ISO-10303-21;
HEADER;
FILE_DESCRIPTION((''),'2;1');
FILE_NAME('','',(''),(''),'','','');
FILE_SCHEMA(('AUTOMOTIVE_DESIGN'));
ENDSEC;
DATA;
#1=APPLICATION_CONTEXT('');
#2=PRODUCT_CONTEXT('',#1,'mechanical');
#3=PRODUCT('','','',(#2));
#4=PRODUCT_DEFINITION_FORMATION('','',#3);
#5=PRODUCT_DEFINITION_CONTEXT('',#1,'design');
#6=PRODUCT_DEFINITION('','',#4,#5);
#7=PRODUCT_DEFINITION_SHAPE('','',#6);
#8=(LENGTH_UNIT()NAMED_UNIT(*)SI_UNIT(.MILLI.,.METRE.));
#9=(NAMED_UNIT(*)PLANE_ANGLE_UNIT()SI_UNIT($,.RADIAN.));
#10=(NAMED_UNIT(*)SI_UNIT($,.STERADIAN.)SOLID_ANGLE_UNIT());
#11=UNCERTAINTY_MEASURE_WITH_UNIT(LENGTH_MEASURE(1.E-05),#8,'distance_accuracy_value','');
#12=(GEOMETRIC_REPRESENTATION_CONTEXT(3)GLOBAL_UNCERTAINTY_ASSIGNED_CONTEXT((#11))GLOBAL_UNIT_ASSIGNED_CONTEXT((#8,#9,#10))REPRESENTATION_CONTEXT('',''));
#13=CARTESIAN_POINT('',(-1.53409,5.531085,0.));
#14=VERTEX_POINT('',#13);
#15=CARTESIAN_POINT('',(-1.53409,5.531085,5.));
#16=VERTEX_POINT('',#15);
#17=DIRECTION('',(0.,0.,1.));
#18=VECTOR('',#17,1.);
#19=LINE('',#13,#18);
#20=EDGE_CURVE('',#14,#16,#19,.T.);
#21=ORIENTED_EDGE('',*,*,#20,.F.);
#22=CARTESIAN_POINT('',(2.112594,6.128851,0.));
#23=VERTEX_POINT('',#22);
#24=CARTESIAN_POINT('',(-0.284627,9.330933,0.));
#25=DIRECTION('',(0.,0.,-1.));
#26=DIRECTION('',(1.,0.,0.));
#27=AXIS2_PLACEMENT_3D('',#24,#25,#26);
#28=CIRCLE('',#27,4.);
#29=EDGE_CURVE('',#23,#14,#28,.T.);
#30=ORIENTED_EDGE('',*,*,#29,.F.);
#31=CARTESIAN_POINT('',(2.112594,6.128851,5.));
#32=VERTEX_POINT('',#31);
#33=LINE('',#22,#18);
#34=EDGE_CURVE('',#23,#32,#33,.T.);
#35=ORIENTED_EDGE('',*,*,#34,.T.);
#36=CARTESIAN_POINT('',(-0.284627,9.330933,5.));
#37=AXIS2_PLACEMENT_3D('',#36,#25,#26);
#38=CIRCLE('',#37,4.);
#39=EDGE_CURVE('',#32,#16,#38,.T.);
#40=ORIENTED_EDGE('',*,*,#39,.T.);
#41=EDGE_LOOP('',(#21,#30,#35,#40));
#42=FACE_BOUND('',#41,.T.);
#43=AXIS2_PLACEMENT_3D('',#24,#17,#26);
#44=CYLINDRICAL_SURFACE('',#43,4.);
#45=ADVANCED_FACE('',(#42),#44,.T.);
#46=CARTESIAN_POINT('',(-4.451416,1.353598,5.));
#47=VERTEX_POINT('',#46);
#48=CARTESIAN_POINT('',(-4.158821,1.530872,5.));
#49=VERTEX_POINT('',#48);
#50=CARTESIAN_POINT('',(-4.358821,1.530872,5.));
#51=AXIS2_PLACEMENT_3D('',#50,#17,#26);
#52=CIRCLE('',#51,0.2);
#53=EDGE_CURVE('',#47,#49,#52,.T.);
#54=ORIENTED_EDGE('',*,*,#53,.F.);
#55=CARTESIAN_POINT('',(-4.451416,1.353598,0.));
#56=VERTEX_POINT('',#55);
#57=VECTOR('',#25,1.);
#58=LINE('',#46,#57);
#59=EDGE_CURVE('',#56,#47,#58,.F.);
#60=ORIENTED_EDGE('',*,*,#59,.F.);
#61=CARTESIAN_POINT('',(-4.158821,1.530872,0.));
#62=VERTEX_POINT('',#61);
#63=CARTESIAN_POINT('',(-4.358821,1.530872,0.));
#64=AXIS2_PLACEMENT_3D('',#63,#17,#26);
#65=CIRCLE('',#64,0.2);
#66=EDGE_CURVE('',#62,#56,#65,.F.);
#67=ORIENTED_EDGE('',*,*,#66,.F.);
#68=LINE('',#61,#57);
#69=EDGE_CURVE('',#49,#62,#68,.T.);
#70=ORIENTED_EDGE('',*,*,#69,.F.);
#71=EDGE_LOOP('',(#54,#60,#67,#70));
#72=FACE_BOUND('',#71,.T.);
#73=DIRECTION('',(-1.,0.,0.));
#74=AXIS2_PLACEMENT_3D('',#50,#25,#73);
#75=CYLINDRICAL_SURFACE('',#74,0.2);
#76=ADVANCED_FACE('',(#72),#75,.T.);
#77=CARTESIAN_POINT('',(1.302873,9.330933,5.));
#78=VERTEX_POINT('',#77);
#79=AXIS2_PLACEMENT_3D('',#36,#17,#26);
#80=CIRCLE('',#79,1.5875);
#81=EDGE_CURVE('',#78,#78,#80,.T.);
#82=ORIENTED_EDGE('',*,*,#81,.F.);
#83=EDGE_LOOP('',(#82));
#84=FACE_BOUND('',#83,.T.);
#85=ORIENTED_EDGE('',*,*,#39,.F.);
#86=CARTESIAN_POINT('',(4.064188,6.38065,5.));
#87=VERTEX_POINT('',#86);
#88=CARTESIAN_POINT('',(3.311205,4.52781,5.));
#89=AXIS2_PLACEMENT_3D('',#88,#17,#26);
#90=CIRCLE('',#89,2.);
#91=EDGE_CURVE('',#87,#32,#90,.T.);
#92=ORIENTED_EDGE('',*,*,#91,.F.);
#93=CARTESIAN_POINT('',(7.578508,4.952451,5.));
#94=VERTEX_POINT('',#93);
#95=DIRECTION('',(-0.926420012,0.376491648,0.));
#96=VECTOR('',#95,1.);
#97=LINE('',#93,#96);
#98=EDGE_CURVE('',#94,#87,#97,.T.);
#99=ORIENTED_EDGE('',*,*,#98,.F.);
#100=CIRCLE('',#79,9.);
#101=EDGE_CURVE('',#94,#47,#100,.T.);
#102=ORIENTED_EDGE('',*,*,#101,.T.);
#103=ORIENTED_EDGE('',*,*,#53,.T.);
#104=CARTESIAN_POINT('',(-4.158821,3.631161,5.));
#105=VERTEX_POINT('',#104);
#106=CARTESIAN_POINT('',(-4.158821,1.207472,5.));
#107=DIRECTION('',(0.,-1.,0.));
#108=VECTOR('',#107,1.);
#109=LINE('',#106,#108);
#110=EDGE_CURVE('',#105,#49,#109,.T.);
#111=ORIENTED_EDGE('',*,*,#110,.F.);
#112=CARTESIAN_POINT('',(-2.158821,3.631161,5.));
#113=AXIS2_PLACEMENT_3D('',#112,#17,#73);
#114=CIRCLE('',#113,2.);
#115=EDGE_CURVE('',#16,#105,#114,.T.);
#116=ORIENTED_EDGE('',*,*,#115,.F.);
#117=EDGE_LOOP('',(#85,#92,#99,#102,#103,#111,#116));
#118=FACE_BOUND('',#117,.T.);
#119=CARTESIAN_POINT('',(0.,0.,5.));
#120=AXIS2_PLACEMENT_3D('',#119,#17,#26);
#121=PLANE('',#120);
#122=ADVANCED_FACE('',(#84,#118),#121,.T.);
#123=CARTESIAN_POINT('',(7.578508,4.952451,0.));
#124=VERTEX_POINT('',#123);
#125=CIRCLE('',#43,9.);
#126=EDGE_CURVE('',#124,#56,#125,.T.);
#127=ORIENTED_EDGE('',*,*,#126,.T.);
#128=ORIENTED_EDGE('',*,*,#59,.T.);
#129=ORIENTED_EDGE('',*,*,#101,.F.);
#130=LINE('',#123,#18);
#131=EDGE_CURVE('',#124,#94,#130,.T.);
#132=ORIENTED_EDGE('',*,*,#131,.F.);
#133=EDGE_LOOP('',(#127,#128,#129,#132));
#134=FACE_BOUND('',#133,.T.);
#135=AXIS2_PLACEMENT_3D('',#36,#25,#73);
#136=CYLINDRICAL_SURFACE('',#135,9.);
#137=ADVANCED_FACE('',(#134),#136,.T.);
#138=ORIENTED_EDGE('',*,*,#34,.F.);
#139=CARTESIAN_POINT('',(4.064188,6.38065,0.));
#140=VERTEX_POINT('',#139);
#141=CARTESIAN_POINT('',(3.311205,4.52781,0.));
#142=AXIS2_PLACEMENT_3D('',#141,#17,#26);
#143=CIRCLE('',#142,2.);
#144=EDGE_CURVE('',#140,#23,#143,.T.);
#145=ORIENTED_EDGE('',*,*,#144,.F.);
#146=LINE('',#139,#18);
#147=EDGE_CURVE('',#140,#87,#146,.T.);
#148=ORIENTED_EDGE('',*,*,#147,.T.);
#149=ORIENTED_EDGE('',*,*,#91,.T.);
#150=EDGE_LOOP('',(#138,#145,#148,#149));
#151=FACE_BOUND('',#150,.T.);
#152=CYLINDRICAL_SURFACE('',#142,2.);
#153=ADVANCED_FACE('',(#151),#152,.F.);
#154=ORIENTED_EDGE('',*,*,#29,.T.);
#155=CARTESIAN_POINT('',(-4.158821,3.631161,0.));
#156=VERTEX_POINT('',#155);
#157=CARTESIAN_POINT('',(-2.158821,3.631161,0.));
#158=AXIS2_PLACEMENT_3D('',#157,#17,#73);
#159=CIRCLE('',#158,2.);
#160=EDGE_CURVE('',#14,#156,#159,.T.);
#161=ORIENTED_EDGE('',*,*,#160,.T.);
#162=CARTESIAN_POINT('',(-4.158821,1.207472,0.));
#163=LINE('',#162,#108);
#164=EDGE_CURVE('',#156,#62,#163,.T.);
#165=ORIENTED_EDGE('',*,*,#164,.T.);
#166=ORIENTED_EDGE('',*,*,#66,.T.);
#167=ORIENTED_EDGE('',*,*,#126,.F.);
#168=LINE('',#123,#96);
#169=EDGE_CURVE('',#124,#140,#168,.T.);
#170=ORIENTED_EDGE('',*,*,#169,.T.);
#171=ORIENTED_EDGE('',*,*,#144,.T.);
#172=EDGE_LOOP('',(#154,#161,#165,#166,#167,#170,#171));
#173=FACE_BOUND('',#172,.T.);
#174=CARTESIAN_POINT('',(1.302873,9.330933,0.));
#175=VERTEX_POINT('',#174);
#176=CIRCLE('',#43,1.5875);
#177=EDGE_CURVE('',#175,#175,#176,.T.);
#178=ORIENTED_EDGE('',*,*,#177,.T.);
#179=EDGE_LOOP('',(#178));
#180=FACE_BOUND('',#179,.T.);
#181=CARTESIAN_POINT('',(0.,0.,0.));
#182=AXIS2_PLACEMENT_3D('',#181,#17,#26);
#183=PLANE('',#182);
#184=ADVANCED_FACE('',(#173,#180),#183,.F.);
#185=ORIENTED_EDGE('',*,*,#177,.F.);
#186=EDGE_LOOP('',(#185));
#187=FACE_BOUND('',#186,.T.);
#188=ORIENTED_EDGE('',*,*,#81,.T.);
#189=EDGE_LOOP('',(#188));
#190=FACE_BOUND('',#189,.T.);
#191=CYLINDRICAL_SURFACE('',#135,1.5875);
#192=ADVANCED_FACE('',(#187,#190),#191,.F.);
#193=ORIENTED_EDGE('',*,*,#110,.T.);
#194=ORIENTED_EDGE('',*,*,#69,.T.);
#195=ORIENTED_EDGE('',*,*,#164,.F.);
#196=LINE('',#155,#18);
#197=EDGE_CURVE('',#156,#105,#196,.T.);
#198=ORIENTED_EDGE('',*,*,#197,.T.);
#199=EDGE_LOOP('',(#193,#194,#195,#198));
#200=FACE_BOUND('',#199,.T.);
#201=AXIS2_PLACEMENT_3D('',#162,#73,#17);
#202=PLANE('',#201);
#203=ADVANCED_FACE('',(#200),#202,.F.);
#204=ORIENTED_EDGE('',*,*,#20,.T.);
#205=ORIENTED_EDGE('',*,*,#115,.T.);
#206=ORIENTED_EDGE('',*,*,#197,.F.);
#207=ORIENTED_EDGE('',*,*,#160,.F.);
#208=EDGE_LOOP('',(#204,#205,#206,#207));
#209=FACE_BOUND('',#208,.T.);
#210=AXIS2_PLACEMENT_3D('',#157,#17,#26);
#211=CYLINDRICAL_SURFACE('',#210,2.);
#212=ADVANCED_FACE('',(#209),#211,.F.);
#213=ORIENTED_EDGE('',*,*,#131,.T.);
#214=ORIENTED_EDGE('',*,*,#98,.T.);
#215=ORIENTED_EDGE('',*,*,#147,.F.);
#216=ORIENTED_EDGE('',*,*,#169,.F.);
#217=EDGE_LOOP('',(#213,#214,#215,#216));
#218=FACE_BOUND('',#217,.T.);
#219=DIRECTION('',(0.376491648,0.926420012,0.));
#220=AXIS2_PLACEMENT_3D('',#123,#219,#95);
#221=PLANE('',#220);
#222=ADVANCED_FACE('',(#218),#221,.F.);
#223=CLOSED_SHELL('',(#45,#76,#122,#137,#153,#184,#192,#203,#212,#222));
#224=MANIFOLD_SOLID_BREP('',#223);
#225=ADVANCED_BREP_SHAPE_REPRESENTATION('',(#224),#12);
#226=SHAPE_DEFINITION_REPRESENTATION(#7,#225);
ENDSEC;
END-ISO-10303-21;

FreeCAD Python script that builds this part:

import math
import FreeCAD as App
import Part
import Sketcher

V = App.Vector
Q = App.Units.Quantity


def edges_at(feature, points):
    """Names of the edges that pass closest to the given points."""
    edges = feature.Shape.Edges
    near = lambda p: min(range(len(edges)), key=lambda i: edges[i].distToShape(Part.Vertex(*p))[0])
    return sorted({f"Edge{near(p) + 1}" for p in points})

doc = App.newDocument("Part")
body = doc.addObject("PartDesign::Body", "Body")

# Sketch on XY plane
sketch1 = doc.addObject("Sketcher::SketchObject", "Sketch")
body.addObject(sketch1)
sketch1.AttachmentSupport = (doc.XY_Plane, [""])
sketch1.MapMode = "FlatFace"
sketch1.addGeometry([
    Part.Circle(V(-0.3, 9.3, 0), V(0, 0, 1), 9),
    Part.Circle(V(-0.3, 9.3, 0), V(0, 0, 1), 1.6),
], False)
sketch1.addConstraint([
    Sketcher.Constraint("Coincident", 1, 3, 0, 3),
    Sketcher.Constraint("Diameter", 0, Q("18 mm")),
    Sketcher.Constraint("Diameter", 1, Q("3.175 mm")),
    Sketcher.Constraint("DistanceX", 0, 3, -1, 1, Q("0.284627 mm")),
    Sketcher.Constraint("DistanceY", -1, 1, 0, 3, Q("9.330933 mm")),
])
pad1 = doc.addObject("PartDesign::Pad", "Pad")
body.addObject(pad1)
pad1.Profile = sketch1
pad1.Length = 5

# Sketch on XY plane
sketch2 = doc.addObject("Sketcher::SketchObject", "Sketch001")
body.addObject(sketch2)
sketch2.AttachmentSupport = (doc.XY_Plane, [""])
sketch2.MapMode = "FlatFace"
sketch2.AttachmentOffset = App.Placement(V(0, 0, 5), App.Rotation())
sketch2.addGeometry([
    Part.LineSegment(V(-4.2, 3.6, 0), V(-4.2, 1.2, 0)),  # 0
    Part.ArcOfCircle(Part.Circle(V(-0.3, 9.3, 0), V(0, 0, 1), 9), math.radians(-115), math.radians(-29)),  # 1
    Part.LineSegment(V(7.6, 5, 0), V(4.1, 6.4, 0)),  # 2
    Part.ArcOfCircle(Part.Circle(V(3.3, 4.5, 0), V(0, 0, 1), 2), math.radians(68), math.radians(127)),  # 3
    Part.ArcOfCircle(Part.Circle(V(-0.3, 9.3, 0), V(0, 0, 1), 4), math.radians(-108), math.radians(-53)),  # 4
    Part.ArcOfCircle(Part.Circle(V(-2.2, 3.6, 0), V(0, 0, 1), 2), math.radians(72), math.radians(180)),  # 5
], False)
sketch2.addConstraint([
    Sketcher.Constraint("Coincident", 0, 2, 1, 1),
    Sketcher.Constraint("Coincident", 1, 2, 2, 1),
    Sketcher.Constraint("Tangent", 2, 2, 3, 1),
    Sketcher.Constraint("Tangent", 3, 2, 4, 2),
    Sketcher.Constraint("Tangent", 4, 1, 5, 1),
    Sketcher.Constraint("Tangent", 5, 2, 0, 1),
    Sketcher.Constraint("Vertical", 0),
    Sketcher.Constraint("Coincident", 4, 3, 1, 3),
    Sketcher.Constraint("Equal", 3, 5),
    Sketcher.Constraint("Radius", 1, Q("9 mm")),
    Sketcher.Constraint("Radius", 3, Q("2 mm")),
    Sketcher.Constraint("Radius", 4, Q("4 mm")),
    Sketcher.Constraint("DistanceY", 0, 2, 0, 1, Q("2.42369 mm")),
    Sketcher.Constraint("DistanceY", 1, 2, 2, 2, Q("1.428199 mm")),
    Sketcher.Constraint("DistanceY", 3, 2, 2, 2, Q("0.251799 mm")),
    Sketcher.Constraint("DistanceY", -1, 1, 3, 3, Q("4.52781 mm")),
    Sketcher.Constraint("DistanceX", 5, 3, -1, 1, Q("2.158821 mm")),
])
pocket1 = doc.addObject("PartDesign::Pocket", "Pocket")
body.addObject(pocket1)
pocket1.Profile = sketch2
pocket1.Type = "ThroughAll"
doc.recompute()

fillet = doc.addObject("PartDesign::Fillet", "Fillet")
body.addObject(fillet)
fillet.Base = (pocket1, edges_at(pocket1, [(-4.159, 1.207, 2.5)]))
fillet.Radius = 0.2

doc.recompute()
